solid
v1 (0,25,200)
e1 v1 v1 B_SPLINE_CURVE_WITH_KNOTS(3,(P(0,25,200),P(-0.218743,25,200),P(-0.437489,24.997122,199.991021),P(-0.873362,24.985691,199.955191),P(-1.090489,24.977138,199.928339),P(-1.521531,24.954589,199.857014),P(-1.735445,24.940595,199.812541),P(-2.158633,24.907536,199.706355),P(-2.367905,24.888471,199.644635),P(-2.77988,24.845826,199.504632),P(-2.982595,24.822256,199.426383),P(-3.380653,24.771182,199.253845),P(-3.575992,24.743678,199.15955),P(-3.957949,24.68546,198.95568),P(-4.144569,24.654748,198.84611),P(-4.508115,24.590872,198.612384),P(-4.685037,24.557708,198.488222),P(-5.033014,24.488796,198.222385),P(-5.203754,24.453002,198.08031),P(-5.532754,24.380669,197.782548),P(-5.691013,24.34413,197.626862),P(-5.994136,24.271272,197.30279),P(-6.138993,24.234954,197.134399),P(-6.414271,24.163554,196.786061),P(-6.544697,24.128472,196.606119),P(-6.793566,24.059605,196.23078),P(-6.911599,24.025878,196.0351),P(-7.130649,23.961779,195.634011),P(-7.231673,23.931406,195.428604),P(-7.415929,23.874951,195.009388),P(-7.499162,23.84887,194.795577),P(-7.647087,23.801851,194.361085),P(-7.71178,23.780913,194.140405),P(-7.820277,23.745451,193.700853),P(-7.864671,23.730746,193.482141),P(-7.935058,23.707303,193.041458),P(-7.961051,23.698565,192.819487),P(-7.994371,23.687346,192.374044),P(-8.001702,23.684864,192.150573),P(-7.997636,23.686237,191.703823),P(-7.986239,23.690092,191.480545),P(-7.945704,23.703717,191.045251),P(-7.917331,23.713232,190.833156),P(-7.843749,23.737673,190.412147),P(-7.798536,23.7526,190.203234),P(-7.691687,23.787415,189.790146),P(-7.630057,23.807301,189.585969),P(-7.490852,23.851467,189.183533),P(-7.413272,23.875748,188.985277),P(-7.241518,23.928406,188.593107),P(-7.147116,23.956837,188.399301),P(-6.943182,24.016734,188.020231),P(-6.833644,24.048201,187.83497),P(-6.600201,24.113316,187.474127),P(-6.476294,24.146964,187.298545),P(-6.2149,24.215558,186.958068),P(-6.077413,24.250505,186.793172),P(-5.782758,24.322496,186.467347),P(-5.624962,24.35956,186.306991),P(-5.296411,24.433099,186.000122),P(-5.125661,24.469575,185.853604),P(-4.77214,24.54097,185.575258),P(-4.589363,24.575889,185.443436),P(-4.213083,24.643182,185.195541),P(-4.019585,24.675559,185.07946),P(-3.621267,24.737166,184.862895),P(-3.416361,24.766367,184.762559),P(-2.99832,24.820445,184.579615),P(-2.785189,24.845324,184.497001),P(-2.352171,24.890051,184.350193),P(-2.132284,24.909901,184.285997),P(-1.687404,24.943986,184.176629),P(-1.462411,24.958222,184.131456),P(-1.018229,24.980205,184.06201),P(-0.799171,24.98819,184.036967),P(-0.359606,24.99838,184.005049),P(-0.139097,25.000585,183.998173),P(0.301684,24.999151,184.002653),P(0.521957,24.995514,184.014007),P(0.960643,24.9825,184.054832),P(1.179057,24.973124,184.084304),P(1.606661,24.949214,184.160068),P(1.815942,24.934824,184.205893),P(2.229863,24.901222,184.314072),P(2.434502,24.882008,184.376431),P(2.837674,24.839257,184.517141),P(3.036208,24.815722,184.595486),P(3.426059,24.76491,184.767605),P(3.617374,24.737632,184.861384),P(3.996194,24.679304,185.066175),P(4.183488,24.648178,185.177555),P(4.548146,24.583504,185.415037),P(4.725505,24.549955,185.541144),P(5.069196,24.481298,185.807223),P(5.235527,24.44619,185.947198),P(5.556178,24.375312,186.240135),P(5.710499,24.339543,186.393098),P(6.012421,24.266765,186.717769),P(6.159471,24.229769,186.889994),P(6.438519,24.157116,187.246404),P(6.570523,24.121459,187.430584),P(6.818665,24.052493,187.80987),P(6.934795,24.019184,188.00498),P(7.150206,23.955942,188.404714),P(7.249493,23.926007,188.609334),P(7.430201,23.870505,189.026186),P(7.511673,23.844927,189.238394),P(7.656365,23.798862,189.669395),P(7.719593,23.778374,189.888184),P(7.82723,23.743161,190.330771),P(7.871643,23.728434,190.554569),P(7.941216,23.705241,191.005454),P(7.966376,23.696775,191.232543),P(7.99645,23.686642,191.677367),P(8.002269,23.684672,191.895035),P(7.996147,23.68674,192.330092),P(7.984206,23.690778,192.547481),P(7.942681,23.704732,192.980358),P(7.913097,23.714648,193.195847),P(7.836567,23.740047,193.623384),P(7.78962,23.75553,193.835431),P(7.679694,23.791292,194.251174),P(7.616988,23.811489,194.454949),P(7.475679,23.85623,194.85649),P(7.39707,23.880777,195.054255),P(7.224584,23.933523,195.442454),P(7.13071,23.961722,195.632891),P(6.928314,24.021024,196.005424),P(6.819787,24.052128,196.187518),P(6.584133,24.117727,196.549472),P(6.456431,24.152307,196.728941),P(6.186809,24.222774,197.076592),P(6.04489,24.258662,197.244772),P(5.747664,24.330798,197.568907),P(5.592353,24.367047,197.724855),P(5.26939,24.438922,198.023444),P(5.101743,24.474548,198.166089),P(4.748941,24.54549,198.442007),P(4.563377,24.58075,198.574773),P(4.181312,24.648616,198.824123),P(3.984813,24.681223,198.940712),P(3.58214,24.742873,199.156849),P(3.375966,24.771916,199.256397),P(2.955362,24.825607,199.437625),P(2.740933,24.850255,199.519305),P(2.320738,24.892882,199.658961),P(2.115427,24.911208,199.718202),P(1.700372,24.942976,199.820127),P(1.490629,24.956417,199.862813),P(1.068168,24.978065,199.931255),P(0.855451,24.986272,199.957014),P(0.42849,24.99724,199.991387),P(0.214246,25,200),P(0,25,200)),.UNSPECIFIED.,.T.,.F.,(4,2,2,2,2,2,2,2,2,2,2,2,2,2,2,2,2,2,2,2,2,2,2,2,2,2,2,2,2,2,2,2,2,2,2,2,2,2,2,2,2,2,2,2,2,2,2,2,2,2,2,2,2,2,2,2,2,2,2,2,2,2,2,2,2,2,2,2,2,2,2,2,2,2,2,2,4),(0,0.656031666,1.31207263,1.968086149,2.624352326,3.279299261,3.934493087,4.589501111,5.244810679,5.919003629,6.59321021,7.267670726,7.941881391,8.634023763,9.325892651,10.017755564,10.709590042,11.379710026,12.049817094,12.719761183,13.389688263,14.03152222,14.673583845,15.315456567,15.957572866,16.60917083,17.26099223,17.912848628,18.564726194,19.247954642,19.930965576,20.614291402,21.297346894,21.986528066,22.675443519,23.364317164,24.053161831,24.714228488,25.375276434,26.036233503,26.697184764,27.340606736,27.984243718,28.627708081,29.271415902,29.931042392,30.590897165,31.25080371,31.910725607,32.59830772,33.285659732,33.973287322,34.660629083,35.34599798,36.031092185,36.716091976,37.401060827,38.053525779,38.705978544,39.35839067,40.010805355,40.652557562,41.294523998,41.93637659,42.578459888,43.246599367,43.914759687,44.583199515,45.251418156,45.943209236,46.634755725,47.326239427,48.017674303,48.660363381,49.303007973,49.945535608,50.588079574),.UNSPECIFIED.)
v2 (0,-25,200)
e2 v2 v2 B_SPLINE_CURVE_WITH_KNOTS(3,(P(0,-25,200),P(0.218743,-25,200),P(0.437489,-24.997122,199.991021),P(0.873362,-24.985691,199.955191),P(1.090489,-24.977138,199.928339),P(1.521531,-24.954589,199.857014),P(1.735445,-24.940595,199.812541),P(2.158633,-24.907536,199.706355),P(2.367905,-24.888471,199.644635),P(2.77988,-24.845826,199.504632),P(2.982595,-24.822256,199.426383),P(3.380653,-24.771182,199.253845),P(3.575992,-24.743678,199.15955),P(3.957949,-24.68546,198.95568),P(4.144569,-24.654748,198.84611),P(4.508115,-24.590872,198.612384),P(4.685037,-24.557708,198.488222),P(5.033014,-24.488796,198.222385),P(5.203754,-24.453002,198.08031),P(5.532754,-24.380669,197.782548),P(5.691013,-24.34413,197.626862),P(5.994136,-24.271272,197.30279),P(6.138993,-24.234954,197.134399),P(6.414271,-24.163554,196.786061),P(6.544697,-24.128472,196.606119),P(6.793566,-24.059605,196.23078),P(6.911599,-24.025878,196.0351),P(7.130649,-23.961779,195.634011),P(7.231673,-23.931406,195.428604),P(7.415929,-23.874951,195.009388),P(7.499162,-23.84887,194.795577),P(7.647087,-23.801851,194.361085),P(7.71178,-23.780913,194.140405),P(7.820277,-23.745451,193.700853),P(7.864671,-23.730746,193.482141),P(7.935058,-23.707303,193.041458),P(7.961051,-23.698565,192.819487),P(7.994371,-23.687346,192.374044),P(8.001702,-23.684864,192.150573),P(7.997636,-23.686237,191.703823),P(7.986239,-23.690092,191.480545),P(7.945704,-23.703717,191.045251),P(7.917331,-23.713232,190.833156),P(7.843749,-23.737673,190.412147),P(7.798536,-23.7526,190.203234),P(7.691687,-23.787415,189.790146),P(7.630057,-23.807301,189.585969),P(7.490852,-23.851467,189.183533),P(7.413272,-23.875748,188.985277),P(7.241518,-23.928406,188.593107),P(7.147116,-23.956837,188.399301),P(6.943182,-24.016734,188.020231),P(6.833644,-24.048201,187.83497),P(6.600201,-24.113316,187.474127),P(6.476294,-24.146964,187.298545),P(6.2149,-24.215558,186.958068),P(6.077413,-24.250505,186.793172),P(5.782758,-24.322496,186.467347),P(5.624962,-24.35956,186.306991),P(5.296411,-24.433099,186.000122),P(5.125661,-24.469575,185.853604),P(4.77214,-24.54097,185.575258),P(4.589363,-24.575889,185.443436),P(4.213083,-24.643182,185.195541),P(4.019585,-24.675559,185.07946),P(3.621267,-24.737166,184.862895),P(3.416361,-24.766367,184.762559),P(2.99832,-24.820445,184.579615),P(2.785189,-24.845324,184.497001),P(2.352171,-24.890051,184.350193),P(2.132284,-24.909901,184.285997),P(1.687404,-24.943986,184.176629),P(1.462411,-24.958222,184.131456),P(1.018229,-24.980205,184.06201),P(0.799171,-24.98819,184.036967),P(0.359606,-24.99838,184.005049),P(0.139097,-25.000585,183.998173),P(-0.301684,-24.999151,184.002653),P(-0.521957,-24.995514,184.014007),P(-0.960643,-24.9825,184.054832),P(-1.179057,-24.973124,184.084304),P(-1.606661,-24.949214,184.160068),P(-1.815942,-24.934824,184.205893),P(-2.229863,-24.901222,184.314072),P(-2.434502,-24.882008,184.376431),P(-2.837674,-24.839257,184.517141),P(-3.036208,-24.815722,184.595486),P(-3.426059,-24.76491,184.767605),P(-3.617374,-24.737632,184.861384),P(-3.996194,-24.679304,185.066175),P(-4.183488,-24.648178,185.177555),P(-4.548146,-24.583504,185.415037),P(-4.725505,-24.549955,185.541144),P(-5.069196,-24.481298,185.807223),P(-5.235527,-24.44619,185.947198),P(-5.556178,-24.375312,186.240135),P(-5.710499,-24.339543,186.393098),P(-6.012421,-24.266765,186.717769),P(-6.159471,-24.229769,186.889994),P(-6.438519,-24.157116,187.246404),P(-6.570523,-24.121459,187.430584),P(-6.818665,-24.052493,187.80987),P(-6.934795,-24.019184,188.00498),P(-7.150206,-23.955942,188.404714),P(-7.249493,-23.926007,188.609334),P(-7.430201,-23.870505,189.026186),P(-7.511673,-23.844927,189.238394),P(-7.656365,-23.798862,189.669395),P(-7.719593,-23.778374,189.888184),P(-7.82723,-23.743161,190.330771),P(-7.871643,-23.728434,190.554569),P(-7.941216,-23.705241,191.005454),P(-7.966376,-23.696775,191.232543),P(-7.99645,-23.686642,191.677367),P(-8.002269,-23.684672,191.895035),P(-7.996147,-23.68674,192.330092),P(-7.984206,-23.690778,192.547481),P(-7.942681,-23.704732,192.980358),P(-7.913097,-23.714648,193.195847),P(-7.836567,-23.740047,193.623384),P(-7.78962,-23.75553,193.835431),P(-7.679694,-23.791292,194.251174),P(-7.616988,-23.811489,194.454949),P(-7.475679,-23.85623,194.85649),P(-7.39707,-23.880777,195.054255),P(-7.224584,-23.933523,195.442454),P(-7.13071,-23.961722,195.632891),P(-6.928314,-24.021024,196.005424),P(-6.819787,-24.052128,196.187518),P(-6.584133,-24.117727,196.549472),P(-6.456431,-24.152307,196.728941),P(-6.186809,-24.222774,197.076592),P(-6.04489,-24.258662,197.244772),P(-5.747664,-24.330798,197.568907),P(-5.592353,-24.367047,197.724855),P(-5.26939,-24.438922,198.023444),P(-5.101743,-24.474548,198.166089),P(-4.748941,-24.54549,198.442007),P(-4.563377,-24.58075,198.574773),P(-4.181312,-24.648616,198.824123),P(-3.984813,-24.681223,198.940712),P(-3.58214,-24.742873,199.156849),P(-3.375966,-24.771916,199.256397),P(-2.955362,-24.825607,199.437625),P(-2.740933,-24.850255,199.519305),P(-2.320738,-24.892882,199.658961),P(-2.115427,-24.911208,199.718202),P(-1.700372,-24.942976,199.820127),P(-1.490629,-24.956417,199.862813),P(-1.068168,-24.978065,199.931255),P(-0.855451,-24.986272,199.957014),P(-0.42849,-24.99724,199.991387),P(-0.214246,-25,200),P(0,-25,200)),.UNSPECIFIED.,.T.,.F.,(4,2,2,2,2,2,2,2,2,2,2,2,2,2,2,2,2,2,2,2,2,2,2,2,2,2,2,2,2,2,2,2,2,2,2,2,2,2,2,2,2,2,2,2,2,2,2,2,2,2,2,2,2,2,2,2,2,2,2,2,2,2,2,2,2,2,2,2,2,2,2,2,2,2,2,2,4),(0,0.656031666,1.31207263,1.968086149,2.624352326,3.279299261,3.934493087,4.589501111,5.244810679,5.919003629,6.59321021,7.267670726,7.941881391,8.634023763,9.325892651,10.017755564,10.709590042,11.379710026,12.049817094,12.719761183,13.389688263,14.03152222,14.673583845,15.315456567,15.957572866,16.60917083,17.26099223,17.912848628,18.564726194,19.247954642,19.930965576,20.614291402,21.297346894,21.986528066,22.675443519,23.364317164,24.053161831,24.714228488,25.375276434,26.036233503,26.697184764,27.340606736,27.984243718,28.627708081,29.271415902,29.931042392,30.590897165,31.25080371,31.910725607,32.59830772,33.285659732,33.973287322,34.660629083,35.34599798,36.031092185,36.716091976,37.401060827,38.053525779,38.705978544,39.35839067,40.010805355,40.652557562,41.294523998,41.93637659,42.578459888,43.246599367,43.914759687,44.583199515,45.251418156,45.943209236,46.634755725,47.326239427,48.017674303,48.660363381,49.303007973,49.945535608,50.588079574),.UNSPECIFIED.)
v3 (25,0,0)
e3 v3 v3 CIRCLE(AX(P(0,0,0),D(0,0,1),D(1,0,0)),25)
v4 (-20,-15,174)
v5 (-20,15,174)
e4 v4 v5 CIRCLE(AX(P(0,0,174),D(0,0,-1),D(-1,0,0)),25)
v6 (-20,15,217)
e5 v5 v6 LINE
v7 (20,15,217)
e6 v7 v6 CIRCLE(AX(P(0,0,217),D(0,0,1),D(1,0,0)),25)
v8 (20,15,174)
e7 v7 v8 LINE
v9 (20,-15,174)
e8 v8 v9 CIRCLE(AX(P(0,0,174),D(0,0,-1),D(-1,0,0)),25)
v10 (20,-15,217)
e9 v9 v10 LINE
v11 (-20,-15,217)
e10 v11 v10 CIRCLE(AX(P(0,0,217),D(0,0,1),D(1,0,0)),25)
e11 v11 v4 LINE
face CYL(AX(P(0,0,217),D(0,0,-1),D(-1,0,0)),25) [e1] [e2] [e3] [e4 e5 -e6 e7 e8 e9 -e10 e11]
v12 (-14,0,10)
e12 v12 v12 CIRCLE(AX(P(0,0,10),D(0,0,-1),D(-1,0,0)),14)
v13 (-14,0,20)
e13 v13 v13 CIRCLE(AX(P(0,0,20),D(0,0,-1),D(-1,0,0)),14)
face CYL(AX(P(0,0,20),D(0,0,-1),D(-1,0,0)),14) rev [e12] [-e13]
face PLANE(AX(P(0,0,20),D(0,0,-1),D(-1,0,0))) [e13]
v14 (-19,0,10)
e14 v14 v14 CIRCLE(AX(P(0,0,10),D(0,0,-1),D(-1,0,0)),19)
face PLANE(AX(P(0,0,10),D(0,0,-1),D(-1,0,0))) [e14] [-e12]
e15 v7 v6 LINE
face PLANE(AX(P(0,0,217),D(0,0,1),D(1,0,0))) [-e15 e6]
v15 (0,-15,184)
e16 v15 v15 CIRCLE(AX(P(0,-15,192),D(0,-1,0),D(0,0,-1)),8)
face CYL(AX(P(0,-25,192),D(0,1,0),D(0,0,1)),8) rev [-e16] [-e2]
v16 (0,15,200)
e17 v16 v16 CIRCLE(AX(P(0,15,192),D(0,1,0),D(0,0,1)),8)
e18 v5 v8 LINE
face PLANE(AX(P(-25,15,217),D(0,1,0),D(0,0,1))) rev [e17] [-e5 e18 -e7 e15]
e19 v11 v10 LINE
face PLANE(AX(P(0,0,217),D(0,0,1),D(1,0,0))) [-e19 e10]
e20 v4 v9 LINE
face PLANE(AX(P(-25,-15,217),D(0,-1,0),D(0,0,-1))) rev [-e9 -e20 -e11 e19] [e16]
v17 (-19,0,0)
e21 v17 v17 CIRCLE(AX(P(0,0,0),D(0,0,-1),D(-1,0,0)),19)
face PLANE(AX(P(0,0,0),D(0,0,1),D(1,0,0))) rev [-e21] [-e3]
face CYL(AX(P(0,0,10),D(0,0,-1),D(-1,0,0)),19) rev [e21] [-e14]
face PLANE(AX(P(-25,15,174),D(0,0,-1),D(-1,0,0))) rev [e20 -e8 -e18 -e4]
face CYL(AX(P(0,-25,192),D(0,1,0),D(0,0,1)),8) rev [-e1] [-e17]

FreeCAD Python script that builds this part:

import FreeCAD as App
import Part
import Sketcher

V = App.Vector
Q = App.Units.Quantity


def add_polygon(sketch, points):
    """Adds a closed chain of lines whose ends are joined by coincident constraints."""
    first, n = sketch.GeometryCount, len(points)
    for a, b in zip(points, points[1:] + points[:1]):
        sketch.addGeometry(Part.LineSegment(App.Vector(*a, 0), App.Vector(*b, 0)), False)
    for i in range(n):
        sketch.addConstraint(Sketcher.Constraint("Coincident", first + i, 2, first + (i + 1) % n, 1))

doc = App.newDocument("Part")
body = doc.addObject("PartDesign::Body", "Body")

# Sketch on XY plane
sketch1 = body.newObject("Sketcher::SketchObject", "Sketch")
sketch1.AttachmentSupport = (doc.getObject("XY_Plane"), [""])
sketch1.MapMode = "FlatFace"
sketch1.addGeometry(Part.Circle(V(0, 0, 0), V(0, 0, 1), 25), False)
sketch1.addConstraint([
    Sketcher.Constraint("Coincident", 0, 3, -1, 1),
    Sketcher.Constraint("Diameter", 0, Q("50 mm")),
])
pad1 = body.newObject("PartDesign::Pad", "Pad")
pad1.Profile = sketch1
pad1.Length = 217

# Sketch on XY plane
sketch2 = body.newObject("Sketcher::SketchObject", "Sketch001")
sketch2.AttachmentSupport = (doc.getObject("XY_Plane"), [""])
sketch2.MapMode = "FlatFace"
sketch2.addGeometry(Part.Circle(V(0, 0, 0), V(0, 0, 1), 19), False)
sketch2.addConstraint([
    Sketcher.Constraint("Coincident", 0, 3, -1, 1),
    Sketcher.Constraint("Diameter", 0, Q("38 mm")),
])
pocket1 = body.newObject("PartDesign::Pocket", "Pocket")
pocket1.Profile = sketch2
pocket1.Length = 10
pocket1.Reversed = True

# Sketch on XY plane
sketch3 = body.newObject("Sketcher::SketchObject", "Sketch002")
sketch3.AttachmentSupport = (doc.getObject("XY_Plane"), [""])
sketch3.MapMode = "FlatFace"
sketch3.AttachmentOffset = App.Placement(V(0, 0, 10), App.Rotation())
sketch3.addGeometry(Part.Circle(V(0, 0, 0), V(0, 0, 1), 14), False)
sketch3.addConstraint([
    Sketcher.Constraint("Coincident", 0, 3, -1, 1),
    Sketcher.Constraint("Diameter", 0, Q("28 mm")),
])
pocket2 = body.newObject("PartDesign::Pocket", "Pocket001")
pocket2.Profile = sketch3
pocket2.Length = 10
pocket2.Reversed = True

# Sketch on YZ plane
sketch4 = body.newObject("Sketcher::SketchObject", "Sketch003")
sketch4.AttachmentSupport = (doc.getObject("YZ_Plane"), [""])
sketch4.MapMode = "FlatFace"
add_polygon(sketch4, [(15, 217), (-15, 217), (-15, 174), (15, 174)])  # lines 0-3
sketch4.addConstraint([
    Sketcher.Constraint("Horizontal", 0),
    Sketcher.Constraint("Vertical", 1),
    Sketcher.Constraint("Horizontal", 2),
    Sketcher.Constraint("Vertical", 3),
    Sketcher.Constraint("DistanceX", 0, 2, 0, 1, Q("30 mm")),
    Sketcher.Constraint("DistanceY", 1, 2, 1, 1, Q("43 mm")),
    Sketcher.Constraint("DistanceX", 0, 2, -1, 1, Q("15 mm")),
    Sketcher.Constraint("DistanceY", -1, 1, 0, 2, Q("217 mm")),
])
pocket3 = body.newObject("PartDesign::Pocket", "Pocket002")
pocket3.Profile = sketch4
pocket3.Type = "ThroughAll"
pocket3.Midplane = True

# Sketch on XZ plane
sketch5 = body.newObject("Sketcher::SketchObject", "Sketch004")
sketch5.AttachmentSupport = (doc.getObject("XZ_Plane"), [""])
sketch5.MapMode = "FlatFace"
sketch5.addGeometry(Part.Circle(V(0, 192, 0), V(0, 0, 1), 8), False)
sketch5.addConstraint([
    Sketcher.Constraint("PointOnObject", 0, 3, -2),
    Sketcher.Constraint("Diameter", 0, Q("16 mm")),
    Sketcher.Constraint("DistanceY", -1, 1, 0, 3, Q("192 mm")),
])
pocket4 = body.newObject("PartDesign::Pocket", "Pocket003")
pocket4.Profile = sketch5
pocket4.Type = "ThroughAll"
pocket4.Midplane = True

doc.recompute()
